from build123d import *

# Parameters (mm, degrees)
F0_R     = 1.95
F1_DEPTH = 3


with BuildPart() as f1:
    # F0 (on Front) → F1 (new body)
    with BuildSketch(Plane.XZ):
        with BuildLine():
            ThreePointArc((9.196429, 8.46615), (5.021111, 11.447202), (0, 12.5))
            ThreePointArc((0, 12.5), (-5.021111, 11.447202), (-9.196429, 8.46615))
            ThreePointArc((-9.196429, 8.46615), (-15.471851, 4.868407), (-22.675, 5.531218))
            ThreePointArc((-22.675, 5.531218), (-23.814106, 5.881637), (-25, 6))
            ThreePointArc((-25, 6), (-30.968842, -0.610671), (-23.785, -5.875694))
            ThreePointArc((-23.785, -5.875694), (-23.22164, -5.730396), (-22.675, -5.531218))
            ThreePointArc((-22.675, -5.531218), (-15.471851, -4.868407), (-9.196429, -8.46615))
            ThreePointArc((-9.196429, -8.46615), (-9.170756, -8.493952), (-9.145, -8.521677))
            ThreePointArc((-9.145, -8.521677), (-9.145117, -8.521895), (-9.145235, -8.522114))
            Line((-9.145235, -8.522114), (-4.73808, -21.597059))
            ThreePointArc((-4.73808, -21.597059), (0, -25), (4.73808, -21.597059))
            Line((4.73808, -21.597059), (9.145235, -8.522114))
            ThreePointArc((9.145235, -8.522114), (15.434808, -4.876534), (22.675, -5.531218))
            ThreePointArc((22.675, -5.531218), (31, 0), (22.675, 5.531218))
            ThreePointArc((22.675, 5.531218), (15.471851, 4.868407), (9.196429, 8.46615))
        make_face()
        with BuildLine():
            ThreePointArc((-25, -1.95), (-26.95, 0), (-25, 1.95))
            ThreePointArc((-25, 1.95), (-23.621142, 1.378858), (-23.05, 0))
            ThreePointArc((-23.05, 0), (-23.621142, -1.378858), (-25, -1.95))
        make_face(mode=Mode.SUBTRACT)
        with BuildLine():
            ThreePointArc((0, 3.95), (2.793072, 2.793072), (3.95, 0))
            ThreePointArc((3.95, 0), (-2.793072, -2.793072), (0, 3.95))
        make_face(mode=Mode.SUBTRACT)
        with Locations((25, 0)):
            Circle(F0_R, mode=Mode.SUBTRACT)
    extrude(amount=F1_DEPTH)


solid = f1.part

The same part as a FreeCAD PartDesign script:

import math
import FreeCAD as App
import Part
import Sketcher
from FreeCAD import Vector
Q = App.Units.Quantity

doc = App.newDocument("Part")
params = doc.addObject("Spreadsheet::Sheet", "Params")
for row, (alias, value) in enumerate([
    ("sketch1_radius", "12 mm"),
    ("sketch1_radius2", "6.000002 mm"),
    ("sketch1_radius3", "12 mm"),
    ("sketch1_radius4", "5 mm"),
    ("sketch1_radius5", "6 mm"),
    ("pad1_length", "3 mm"),
], start=1):
    params.set(f"A{row}", alias)
    params.set(f"B{row}", "=" + value)
    params.setAlias(f"B{row}", alias)

body = doc.addObject("PartDesign::Body", "Body")

sketch1 = body.newObject("Sketcher::SketchObject", "Sketch")
sketch1.AttachmentSupport = (doc.getObject("XZ_Plane"), [""])
sketch1.MapMode = "FlatFace"
sketch1.addGeometry([
    Part.ArcOfCircle(Part.Circle(Vector(-0.000002, -0.000005, 0), Vector(0, 0, 1), 12.500005), math.radians(42.632401), math.radians(89.99999)),
    Part.ArcOfCircle(Part.Circle(Vector(0.000002, -0.000005, 0), Vector(0, 0, 1), 12.500005), math.radians(90.00001), math.radians(137.367599)),
    Part.ArcOfCircle(Part.Circle(Vector(-18.025, 16.593654, 0), Vector(0, 0, 1), 12), math.radians(-112.799031), math.radians(-42.632394)),
    Part.ArcOfCircle(Part.Circle(Vector(-25.000001, -0.000002, 0), Vector(0, 0, 1), 6.000002), math.radians(67.200966), math.radians(89.999992)),
    Part.ArcOfCircle(Part.Circle(Vector(-24.999999, 0, 0), Vector(0, 0, 1), 6), math.radians(90.000006), math.radians(281.683184)),
    Part.ArcOfCircle(Part.Circle(Vector(-24.999996, -0.000024, 0), Vector(0, 0, 1), 5.999977), math.radians(-78.316802), math.radians(-67.200916)),
    Part.ArcOfCircle(Part.Circle(Vector(-18.025, -16.593654, 0), Vector(0, 0, 1), 12), math.radians(42.632394), math.radians(112.799031)),
    Part.ArcOfCircle(Part.Circle(Vector(0.109157, 0.101085, 0), Vector(0, 0, 1), 12.648773), math.radians(-137.365621), math.radians(-137.022787)),
    Part.ArcOfCircle(Part.Circle(Vector(-9.278268, -8.450293, 0), Vector(0, 0, 1), 0.151183), math.radians(-28.363494), math.radians(-28.17545)),
    Part.LineSegment(Vector(-9.145235, -8.522114, 0), Vector(-4.73808, -21.597059, 0)),
    Part.ArcOfCircle(Part.Circle(Vector(0, -20, 0), Vector(0, 0, 1), 5), math.radians(-161.372644), math.radians(-18.627356)),
    Part.LineSegment(Vector(4.73808, -21.597059, 0), Vector(9.145235, -8.522114, 0)),
    Part.ArcOfCircle(Part.Circle(Vector(18.025, -16.593652, 0), Vector(0, 0, 1), 11.999998), math.radians(67.200964), math.radians(137.729757)),
    Part.ArcOfCircle(Part.Circle(Vector(25, 0, 0), Vector(0, 0, 1), 6), math.radians(-112.799033), math.radians(112.799033)),
    Part.ArcOfCircle(Part.Circle(Vector(18.025, 16.593654, 0), Vector(0, 0, 1), 12), math.radians(-137.367606), math.radians(-67.200969)),
    Part.ArcOfCircle(Part.Circle(Vector(0, 0, 0), Vector(0, 0, 1), 3.95), math.radians(89.999998), math.radians(360.000002)),
    Part.ArcOfCircle(Part.Circle(Vector(0.000001, 0.000001, 0), Vector(0, 0, 1), 3.949999), math.radians(-0.000011), math.radians(90.000011)),
    Part.ArcOfCircle(Part.Circle(Vector(-25.000001, 0.000001, 0), Vector(0, 0, 1), 1.950001), math.radians(-89.999978), math.radians(-0.000022)),
    Part.ArcOfCircle(Part.Circle(Vector(-25, 0, 0), Vector(0, 0, 1), 1.95), math.radians(90), math.radians(270)),
    Part.ArcOfCircle(Part.Circle(Vector(-25.000001, -0.000001, 0), Vector(0, 0, 1), 1.950001), math.radians(0.000022), math.radians(89.999978)),
    Part.Circle(Vector(25, 0, 0), Vector(0, 0, 1), 1.95),
], False)
sketch1.addConstraint([
    Sketcher.Constraint("Coincident", 0, 2, 1, 1),
    Sketcher.Constraint("Coincident", 1, 2, 2, 2),
    Sketcher.Constraint("Coincident", 2, 1, 3, 1),
    Sketcher.Constraint("Coincident", 3, 2, 4, 1),
    Sketcher.Constraint("Coincident", 4, 2, 5, 1),
    Sketcher.Constraint("Coincident", 5, 2, 6, 2),
    Sketcher.Constraint("Coincident", 6, 1, 7, 1),
    Sketcher.Constraint("Coincident", 7, 2, 8, 2),
    Sketcher.Constraint("Coincident", 8, 1, 9, 1),
    Sketcher.Constraint("Coincident", 9, 2, 10, 1),
    Sketcher.Constraint("Coincident", 10, 2, 11, 1),
    Sketcher.Constraint("Coincident", 11, 2, 12, 2),
    Sketcher.Constraint("Coincident", 12, 1, 13, 1),
    Sketcher.Constraint("Coincident", 13, 2, 14, 2),
    Sketcher.Constraint("Coincident", 14, 1, 0, 1),
    Sketcher.Constraint("Coincident", 15, 1, 16, 2),
    Sketcher.Constraint("Coincident", 16, 1, 15, 2),
    Sketcher.Constraint("Coincident", 17, 1, 18, 2),
    Sketcher.Constraint("Coincident", 18, 1, 19, 2),
    Sketcher.Constraint("Coincident", 19, 1, 17, 2),
    Sketcher.Constraint("Coincident", 0, 3, -1, 1),
    Sketcher.Constraint("Coincident", 1, 3, -1, 1),
    Sketcher.Constraint("Coincident", 15, 3, -1, 1),
    Sketcher.Constraint("Coincident", 4, 3, 3, 3),
    Sketcher.Constraint("Coincident", 17, 3, 3, 3),
    Sketcher.Constraint("Coincident", 18, 3, 3, 3),
    Sketcher.Constraint("Coincident", 20, 3, 13, 3),
    Sketcher.Constraint("PointOnObject", 3, 3, -1),
    Sketcher.Constraint("PointOnObject", 10, 3, -2),
    Sketcher.Constraint("PointOnObject", 13, 3, -1),
    Sketcher.Constraint("PointOnObject", 19, 3, -1),
    Sketcher.Constraint("PointOnObject", 0, 2, -2),
    Sketcher.Constraint("PointOnObject", 15, 1, -2),
    Sketcher.Constraint("PointOnObject", 16, 1, -1),
    Sketcher.Constraint("PointOnObject", 19, 1, -1),
    Sketcher.Constraint("Radius", 2, Q("12 mm")),
    Sketcher.Constraint("Radius", 3, Q("6.000002 mm")),
    Sketcher.Constraint("Radius", 6, Q("12 mm")),
    Sketcher.Constraint("Radius", 10, Q("5 mm")),
    Sketcher.Constraint("Radius", 13, Q("6 mm")),
    Sketcher.Constraint("Radius", 14, Q("12 mm")),
    Sketcher.Constraint("Diameter", 20, Q("3.9 mm")),
    Sketcher.Constraint("Radius", 15, Q("3.95 mm")),
    Sketcher.Constraint("Radius", 16, Q("3.949999 mm")),
    Sketcher.Constraint("Radius", 17, Q("1.950001 mm")),
    Sketcher.Constraint("DistanceX", 3, 3, -1, 1, Q("25.000001 mm")),
    Sketcher.Constraint("DistanceY", 10, 3, -1, 1, Q("20 mm")),
    Sketcher.Constraint("DistanceX", -1, 1, 13, 3, Q("25 mm")),
    Sketcher.Constraint("DistanceX", 3, 2, -1, 1, Q("25 mm")),
    Sketcher.Constraint("DistanceX", 17, 1, -1, 1, Q("25 mm")),
    Sketcher.Constraint("DistanceX", 18, 1, -1, 1, Q("25 mm")),
    Sketcher.Constraint("DistanceX", 5, 3, 1, 3, Q("24.999998 mm")),
    Sketcher.Constraint("DistanceY", -1, 1, 0, 2, Q("12.5 mm")),
    Sketcher.Constraint("DistanceX", 4, 2, 5, 2, Q("1.11 mm")),
    Sketcher.Constraint("DistanceX", 6, 3, 7, 2, Q("8.88 mm")),
    Sketcher.Constraint("DistanceX", 12, 3, 12, 1, Q("4.65 mm")),
    Sketcher.Constraint("DistanceX", 14, 3, 12, 1, Q("4.65 mm")),
    Sketcher.Constraint("DistanceX", 14, 3, 13, 2, Q("4.65 mm")),
    Sketcher.Constraint("DistanceX", 6, 3, -1, 1, Q("18.025 mm")),
    Sketcher.Constraint("DistanceX", 2, 1, -1, 1, Q("22.675 mm")),
    Sketcher.Constraint("DistanceX", 4, 2, -1, 1, Q("23.785 mm")),
    Sketcher.Constraint("Radius", 5, Q("5.999977 mm")),
    Sketcher.Constraint("Radius", 7, Q("12.648773 mm")),
    Sketcher.Constraint("Radius", 8, Q("0.151183 mm")),
    Sketcher.Constraint("Radius", 12, Q("11.999998 mm")),
    Sketcher.Constraint("DistanceY", 11, 2, 7, 3, Q("8.623199 mm")),
    Sketcher.Constraint("DistanceX", 8, 3, -1, 1, Q("9.278268 mm")),
    Sketcher.Constraint("DistanceX", 1, 2, -1, 1, Q("9.196429 mm")),
    Sketcher.Constraint("DistanceX", 6, 1, -1, 1, Q("9.196429 mm")),
    Sketcher.Constraint("DistanceX", 9, 2, -1, 1, Q("4.73808 mm")),
    Sketcher.Constraint("DistanceX", -1, 1, 10, 2, Q("4.73808 mm")),
    Sketcher.Constraint("DistanceX", -1, 1, 14, 1, Q("9.196429 mm")),
    Sketcher.Constraint("DistanceY", 1, 3, 7, 3, Q("0.101091 mm")),
    Sketcher.Constraint("DistanceY", 8, 1, 8, 3, Q("0.071821 mm")),
])
sketch1.setExpression("Constraints[35]", "Params.sketch1_radius")
sketch1.setExpression("Constraints[36]", "Params.sketch1_radius2")
sketch1.setExpression("Constraints[37]", "Params.sketch1_radius3")
sketch1.setExpression("Constraints[38]", "Params.sketch1_radius4")
sketch1.setExpression("Constraints[39]", "Params.sketch1_radius5")
pad1 = body.newObject("PartDesign::Pad", "Pad")
pad1.Profile = sketch1
pad1.setExpression("Length", "Params.pad1_length")

doc.recompute()
